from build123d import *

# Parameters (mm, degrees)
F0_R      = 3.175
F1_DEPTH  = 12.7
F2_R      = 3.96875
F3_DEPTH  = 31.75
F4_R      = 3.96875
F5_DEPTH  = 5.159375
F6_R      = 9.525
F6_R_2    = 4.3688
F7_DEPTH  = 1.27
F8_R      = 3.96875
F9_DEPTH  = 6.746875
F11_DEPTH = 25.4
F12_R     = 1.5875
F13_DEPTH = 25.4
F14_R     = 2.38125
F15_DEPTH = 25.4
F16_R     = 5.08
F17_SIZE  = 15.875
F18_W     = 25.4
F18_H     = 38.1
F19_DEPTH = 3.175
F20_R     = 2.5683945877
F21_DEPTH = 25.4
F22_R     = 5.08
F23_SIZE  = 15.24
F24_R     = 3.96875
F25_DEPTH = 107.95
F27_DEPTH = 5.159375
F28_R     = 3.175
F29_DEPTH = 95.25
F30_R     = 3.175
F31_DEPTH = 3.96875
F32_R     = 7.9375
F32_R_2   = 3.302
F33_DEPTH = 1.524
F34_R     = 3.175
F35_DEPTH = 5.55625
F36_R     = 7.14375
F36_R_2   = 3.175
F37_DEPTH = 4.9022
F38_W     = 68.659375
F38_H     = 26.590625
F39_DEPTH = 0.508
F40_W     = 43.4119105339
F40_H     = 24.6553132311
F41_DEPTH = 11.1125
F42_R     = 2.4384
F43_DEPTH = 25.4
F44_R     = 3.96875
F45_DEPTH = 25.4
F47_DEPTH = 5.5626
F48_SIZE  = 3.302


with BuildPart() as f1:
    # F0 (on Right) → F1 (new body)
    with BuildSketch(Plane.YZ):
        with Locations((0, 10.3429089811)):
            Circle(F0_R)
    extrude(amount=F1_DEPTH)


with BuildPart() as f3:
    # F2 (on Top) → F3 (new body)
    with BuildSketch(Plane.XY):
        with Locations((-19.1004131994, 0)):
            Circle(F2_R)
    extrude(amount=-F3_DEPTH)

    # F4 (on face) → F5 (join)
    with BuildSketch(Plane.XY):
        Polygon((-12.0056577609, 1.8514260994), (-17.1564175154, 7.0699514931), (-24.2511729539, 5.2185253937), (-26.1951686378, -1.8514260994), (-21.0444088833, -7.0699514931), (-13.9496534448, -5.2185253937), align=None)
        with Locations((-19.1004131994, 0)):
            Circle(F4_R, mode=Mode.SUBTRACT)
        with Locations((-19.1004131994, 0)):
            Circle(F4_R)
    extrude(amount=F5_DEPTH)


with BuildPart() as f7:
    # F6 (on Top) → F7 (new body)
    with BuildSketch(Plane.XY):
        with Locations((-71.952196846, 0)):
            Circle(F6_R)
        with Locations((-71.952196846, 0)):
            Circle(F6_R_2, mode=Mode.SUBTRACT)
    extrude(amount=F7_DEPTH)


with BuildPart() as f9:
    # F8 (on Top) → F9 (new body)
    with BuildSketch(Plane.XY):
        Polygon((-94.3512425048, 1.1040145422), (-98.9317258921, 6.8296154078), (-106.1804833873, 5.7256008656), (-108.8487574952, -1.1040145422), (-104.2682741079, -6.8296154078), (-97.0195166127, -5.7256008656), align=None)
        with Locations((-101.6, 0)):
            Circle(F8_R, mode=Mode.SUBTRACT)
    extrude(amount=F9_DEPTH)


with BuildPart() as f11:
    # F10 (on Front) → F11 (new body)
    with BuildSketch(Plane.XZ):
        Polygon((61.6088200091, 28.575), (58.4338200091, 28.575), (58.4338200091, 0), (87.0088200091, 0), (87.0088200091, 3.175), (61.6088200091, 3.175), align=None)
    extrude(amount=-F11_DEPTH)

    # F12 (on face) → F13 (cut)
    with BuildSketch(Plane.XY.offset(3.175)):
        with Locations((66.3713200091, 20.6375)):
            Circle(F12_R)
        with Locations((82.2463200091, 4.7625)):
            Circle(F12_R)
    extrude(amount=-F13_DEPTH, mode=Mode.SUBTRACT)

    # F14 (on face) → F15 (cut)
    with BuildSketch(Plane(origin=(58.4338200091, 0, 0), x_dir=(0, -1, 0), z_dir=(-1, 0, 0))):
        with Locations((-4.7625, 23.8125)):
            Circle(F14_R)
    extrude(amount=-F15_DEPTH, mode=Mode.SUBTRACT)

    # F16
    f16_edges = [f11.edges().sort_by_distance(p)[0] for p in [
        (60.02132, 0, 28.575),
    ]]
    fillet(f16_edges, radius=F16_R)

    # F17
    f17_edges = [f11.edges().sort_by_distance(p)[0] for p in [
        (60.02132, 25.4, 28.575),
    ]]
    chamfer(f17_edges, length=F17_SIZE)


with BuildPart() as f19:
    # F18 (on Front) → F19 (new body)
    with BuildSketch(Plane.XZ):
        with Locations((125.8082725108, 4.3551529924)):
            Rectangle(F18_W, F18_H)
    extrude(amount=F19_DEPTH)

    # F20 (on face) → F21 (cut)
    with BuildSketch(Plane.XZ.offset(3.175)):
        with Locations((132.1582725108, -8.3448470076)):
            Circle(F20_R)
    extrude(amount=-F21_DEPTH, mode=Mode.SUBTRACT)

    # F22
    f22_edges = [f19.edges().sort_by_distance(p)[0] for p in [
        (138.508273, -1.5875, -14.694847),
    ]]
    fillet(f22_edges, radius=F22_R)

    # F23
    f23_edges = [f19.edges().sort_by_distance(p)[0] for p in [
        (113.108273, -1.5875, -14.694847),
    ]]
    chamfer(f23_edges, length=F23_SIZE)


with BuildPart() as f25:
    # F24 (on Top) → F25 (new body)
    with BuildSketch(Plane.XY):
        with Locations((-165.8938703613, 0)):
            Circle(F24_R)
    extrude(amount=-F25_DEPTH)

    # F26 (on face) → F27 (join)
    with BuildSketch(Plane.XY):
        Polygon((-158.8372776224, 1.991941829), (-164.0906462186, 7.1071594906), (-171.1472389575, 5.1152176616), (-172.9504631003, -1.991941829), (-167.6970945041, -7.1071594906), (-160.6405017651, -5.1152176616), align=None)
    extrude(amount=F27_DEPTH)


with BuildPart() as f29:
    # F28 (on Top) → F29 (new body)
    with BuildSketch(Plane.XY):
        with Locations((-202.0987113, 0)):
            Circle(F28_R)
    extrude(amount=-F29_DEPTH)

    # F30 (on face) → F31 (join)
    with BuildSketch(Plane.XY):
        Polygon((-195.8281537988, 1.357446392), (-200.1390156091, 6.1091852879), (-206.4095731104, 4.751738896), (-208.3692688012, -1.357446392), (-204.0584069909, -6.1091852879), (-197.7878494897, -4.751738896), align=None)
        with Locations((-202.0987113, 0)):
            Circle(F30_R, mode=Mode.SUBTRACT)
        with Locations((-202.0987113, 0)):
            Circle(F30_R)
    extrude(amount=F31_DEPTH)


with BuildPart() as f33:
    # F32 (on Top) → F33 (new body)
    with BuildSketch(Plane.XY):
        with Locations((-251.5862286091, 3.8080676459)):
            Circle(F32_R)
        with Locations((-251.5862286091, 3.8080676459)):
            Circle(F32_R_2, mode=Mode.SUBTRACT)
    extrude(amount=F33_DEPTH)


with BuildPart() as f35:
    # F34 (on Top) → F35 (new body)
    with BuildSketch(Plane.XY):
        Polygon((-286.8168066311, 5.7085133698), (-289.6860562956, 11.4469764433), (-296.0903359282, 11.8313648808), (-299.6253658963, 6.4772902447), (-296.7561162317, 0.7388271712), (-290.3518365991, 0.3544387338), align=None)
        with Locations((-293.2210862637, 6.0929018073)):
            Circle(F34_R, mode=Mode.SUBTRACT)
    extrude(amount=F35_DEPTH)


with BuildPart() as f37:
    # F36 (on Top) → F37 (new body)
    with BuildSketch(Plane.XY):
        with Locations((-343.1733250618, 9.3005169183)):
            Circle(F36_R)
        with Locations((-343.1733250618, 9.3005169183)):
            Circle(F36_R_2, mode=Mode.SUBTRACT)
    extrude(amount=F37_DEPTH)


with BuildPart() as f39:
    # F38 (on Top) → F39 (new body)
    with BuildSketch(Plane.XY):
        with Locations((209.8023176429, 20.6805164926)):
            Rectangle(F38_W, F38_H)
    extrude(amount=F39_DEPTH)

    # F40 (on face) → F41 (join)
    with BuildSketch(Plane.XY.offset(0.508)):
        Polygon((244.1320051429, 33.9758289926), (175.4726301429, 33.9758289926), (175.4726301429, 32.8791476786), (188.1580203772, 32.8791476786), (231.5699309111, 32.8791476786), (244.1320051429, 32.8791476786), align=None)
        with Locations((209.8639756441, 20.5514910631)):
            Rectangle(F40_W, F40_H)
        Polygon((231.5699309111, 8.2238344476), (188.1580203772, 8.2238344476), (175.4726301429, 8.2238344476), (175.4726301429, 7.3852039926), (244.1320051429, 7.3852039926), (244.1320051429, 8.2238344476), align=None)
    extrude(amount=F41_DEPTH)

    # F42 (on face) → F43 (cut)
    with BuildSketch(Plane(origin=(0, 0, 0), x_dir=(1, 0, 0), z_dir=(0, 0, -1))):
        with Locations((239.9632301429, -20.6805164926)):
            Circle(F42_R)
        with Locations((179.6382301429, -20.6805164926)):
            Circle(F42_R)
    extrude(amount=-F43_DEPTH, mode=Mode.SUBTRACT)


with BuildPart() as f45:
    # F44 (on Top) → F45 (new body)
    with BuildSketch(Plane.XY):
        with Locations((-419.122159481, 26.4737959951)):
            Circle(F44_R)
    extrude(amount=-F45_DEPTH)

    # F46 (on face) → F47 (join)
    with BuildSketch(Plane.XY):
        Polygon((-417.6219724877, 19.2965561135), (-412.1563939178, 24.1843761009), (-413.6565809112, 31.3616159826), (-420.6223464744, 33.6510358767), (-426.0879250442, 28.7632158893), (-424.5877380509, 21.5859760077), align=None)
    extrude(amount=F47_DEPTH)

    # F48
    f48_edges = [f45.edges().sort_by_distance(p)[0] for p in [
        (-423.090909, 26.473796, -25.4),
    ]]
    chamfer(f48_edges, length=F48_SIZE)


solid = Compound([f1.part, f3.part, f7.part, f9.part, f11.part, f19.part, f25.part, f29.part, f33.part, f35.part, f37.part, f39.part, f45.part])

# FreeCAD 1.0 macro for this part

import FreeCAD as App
import Part
import Sketcher
Q = App.Units.Quantity


def edges_at(feature, points):
    """Names of the edges that pass closest to the given points."""
    edges = feature.Shape.Edges
    near = lambda p: min(range(len(edges)), key=lambda i: edges[i].distToShape(Part.Vertex(*p))[0])
    return sorted({f"Edge{near(p) + 1}" for p in points})

doc = App.newDocument("Part")
params = doc.addObject("Spreadsheet::Sheet", "Params")
for row, (alias, value) in enumerate([
    ("sketch1_diameter", "0.25 in"),
    ("pad1_length", "0.5 in"),
    ("sketch2_diameter", "0.3125 in"),
    ("pad2_length", "1.25 in"),
    ("pad3_length", "0.203125 in"),
    ("sketch4_diameter", "0.75 in"),
    ("sketch4_diameter2", "0.344 in"),
    ("pad4_length", "0.05 in"),
    ("sketch5_diameter", "0.3125 in"),
    ("pad5_length", "0.265625 in"),
    ("sketch6_width", "1 in"),
    ("sketch6_width2", "0.125 in"),
    ("pad6_length", "1 in"),
    ("sketch7_diameter", "0.125 in"),
    ("pocket1_length", "1 in"),
    ("sketch8_diameter", "0.1875 in"),
    ("pocket2_length", "1 in"),
    ("fillet_radius", "0.2 in"),
    ("chamfer_size", "0.625 in"),
    ("sketch9_width", "1 in"),
    ("sketch9_height", "1.5 in"),
    ("pad7_length", "0.125 in"),
    ("pocket3_length", "1 in"),
    ("fillet2_radius", "0.2 in"),
    ("chamfer2_size", "0.6 in"),
    ("sketch11_diameter", "0.3125 in"),
    ("pad8_length", "4.25 in"),
    ("pad9_length", "0.203125 in"),
    ("sketch13_diameter", "0.25 in"),
    ("pad10_length", "3.75 in"),
    ("pad11_length", "0.15625 in"),
    ("sketch15_diameter", "0.26 in"),
    ("sketch15_diameter2", "0.625 in"),
    ("pad12_length", "0.06 in"),
    ("sketch16_diameter", "0.25 in"),
    ("pad13_length", "0.21875 in"),
    ("sketch17_diameter", "0.25 in"),
    ("sketch17_diameter2", "0.5625 in"),
    ("pad14_length", "0.193 in"),
    ("sketch18_width", "2.703125 in"),
    ("sketch18_height", "1.046875 in"),
    ("pad15_length", "0.02 in"),
    ("sketch19_width", "2.703125 in"),
    ("pad16_length", "0.4375 in"),
    ("sketch20_diameter", "0.192 in"),
    ("pocket4_length", "1 in"),
    ("sketch21_diameter", "0.3125 in"),
    ("pad17_length", "1 in"),
    ("pad18_length", "0.219 in"),
    ("chamfer3_size", "0.13 in"),
], start=1):
    params.set(f"A{row}", alias)
    params.set(f"B{row}", "=" + value)
    params.setAlias(f"B{row}", alias)

body = doc.addObject("PartDesign::Body", "Body")

# Sketch on YZ plane
sketch1 = body.newObject("Sketcher::SketchObject", "Sketch")
sketch1.AttachmentSupport = (doc.getObject("YZ_Plane"), [""])
sketch1.MapMode = "FlatFace"
sketch1.addGeometry(Part.Circle(App.Vector(0, 10.342909, 0), App.Vector(0, 0, 1), 3.175), False)
sketch1.addConstraint(Sketcher.Constraint("PointOnObject", 0, 3, -2))
sketch1.addConstraint(Sketcher.Constraint("Diameter", 0, Q("0.25 in")))
sketch1.addConstraint(Sketcher.Constraint("DistanceY", -1, 1, 0, 3, 10.342909))
sketch1.setExpression("Constraints[1]", "Params.sketch1_diameter")
pad1 = body.newObject("PartDesign::Pad", "Pad")
pad1.Profile = sketch1
pad1.setExpression("Length", "Params.pad1_length")
body2 = doc.addObject("PartDesign::Body", "Body001")

# Sketch on XY plane
sketch2 = body2.newObject("Sketcher::SketchObject", "Sketch001")
sketch2.AttachmentSupport = (doc.getObject("XY_Plane001"), [""])
sketch2.MapMode = "FlatFace"
sketch2.addGeometry(Part.Circle(App.Vector(-19.100413, 0, 0), App.Vector(0, 0, 1), 3.96875), False)
sketch2.addConstraint(Sketcher.Constraint("PointOnObject", 0, 3, -1))
sketch2.addConstraint(Sketcher.Constraint("Diameter", 0, Q("0.3125 in")))
sketch2.addConstraint(Sketcher.Constraint("DistanceX", 0, 3, -1, 1, 19.100413))
sketch2.setExpression("Constraints[1]", "Params.sketch2_diameter")
pad2 = body2.newObject("PartDesign::Pad", "Pad001")
pad2.Profile = sketch2
pad2.setExpression("Length", "Params.pad2_length")
pad2.Reversed = True

# Sketch on XY plane
sketch3 = body2.newObject("Sketcher::SketchObject", "Sketch002")
sketch3.AttachmentSupport = (doc.getObject("XY_Plane001"), [""])
sketch3.MapMode = "FlatFace"
sketch3.addGeometry(Part.LineSegment(App.Vector(-12.005658, 1.851426, 0), App.Vector(-17.156418, 7.069951, 0)), False)
sketch3.addGeometry(Part.LineSegment(App.Vector(-17.156418, 7.069951, 0), App.Vector(-24.251173, 5.218525, 0)), False)
sketch3.addGeometry(Part.LineSegment(App.Vector(-24.251173, 5.218525, 0), App.Vector(-26.195169, -1.851426, 0)), False)
sketch3.addGeometry(Part.LineSegment(App.Vector(-26.195169, -1.851426, 0), App.Vector(-21.044409, -7.069951, 0)), False)
sketch3.addGeometry(Part.LineSegment(App.Vector(-21.044409, -7.069951, 0), App.Vector(-13.949653, -5.218525, 0)), False)
sketch3.addGeometry(Part.LineSegment(App.Vector(-13.949653, -5.218525, 0), App.Vector(-12.005658, 1.851426, 0)), False)
sketch3.addConstraint(Sketcher.Constraint("Coincident", 0, 2, 1, 1))
sketch3.addConstraint(Sketcher.Constraint("Coincident", 1, 2, 2, 1))
sketch3.addConstraint(Sketcher.Constraint("Coincident", 2, 2, 3, 1))
sketch3.addConstraint(Sketcher.Constraint("Coincident", 3, 2, 4, 1))
sketch3.addConstraint(Sketcher.Constraint("Coincident", 4, 2, 5, 1))
sketch3.addConstraint(Sketcher.Constraint("Coincident", 5, 2, 0, 1))
sketch3.addConstraint(Sketcher.Constraint("Parallel", 0, 3))
sketch3.addConstraint(Sketcher.Constraint("Parallel", 1, 4))
sketch3.addConstraint(Sketcher.Constraint("Parallel", 2, 5))
sketch3.addConstraint(Sketcher.Constraint("Equal", 0, 1))
sketch3.addConstraint(Sketcher.Constraint("Equal", 1, 2))
sketch3.addConstraint(Sketcher.Constraint("Equal", 2, 3))
sketch3.addConstraint(Sketcher.Constraint("DistanceY", 4, 2, 2, 2, 3.367099))
sketch3.addConstraint(Sketcher.Constraint("Distance", 0, 7.332348))
sketch3.addConstraint(Sketcher.Constraint("DistanceY", -1, 1, 0, 2, 7.069951))
sketch3.addConstraint(Sketcher.Constraint("DistanceX", 2, 2, -1, 1, 26.195169))
sketch3.addConstraint(Sketcher.Constraint("DistanceX", 3, 2, -1, 1, 21.044409))
sketch3.addConstraint(Sketcher.Constraint("DistanceY", 3, 2, -1, 1, 7.069951))
pad3 = body2.newObject("PartDesign::Pad", "Pad002")
pad3.Profile = sketch3
pad3.setExpression("Length", "Params.pad3_length")
body3 = doc.addObject("PartDesign::Body", "Body002")

# Sketch on XY plane
sketch4 = body3.newObject("Sketcher::SketchObject", "Sketch003")
sketch4.AttachmentSupport = (doc.getObject("XY_Plane002"), [""])
sketch4.MapMode = "FlatFace"
sketch4.addGeometry(Part.Circle(App.Vector(-71.952197, 0, 0), App.Vector(0, 0, 1), 9.525), False)
sketch4.addGeometry(Part.Circle(App.Vector(-71.952197, 0, 0), App.Vector(0, 0, 1), 4.3688), False)
sketch4.addConstraint(Sketcher.Constraint("Coincident", 1, 3, 0, 3))
sketch4.addConstraint(Sketcher.Constraint("PointOnObject", 0, 3, -1))
sketch4.addConstraint(Sketcher.Constraint("Diameter", 0, Q("0.75 in")))
sketch4.addConstraint(Sketcher.Constraint("Diameter", 1, Q("0.344 in")))
sketch4.addConstraint(Sketcher.Constraint("DistanceX", 0, 3, -1, 1, 71.952197))
sketch4.setExpression("Constraints[2]", "Params.sketch4_diameter")
sketch4.setExpression("Constraints[3]", "Params.sketch4_diameter2")
pad4 = body3.newObject("PartDesign::Pad", "Pad003")
pad4.Profile = sketch4
pad4.setExpression("Length", "Params.pad4_length")
body4 = doc.addObject("PartDesign::Body", "Body003")

# Sketch on XY plane
sketch5 = body4.newObject("Sketcher::SketchObject", "Sketch004")
sketch5.AttachmentSupport = (doc.getObject("XY_Plane003"), [""])
sketch5.MapMode = "FlatFace"
sketch5.addGeometry(Part.LineSegment(App.Vector(-94.351243, 1.104015, 0), App.Vector(-98.931726, 6.829615, 0)), False)
sketch5.addGeometry(Part.LineSegment(App.Vector(-98.931726, 6.829615, 0), App.Vector(-106.180483, 5.725601, 0)), False)
sketch5.addGeometry(Part.LineSegment(App.Vector(-106.180483, 5.725601, 0), App.Vector(-108.848757, -1.104015, 0)), False)
sketch5.addGeometry(Part.LineSegment(App.Vector(-108.848757, -1.104015, 0), App.Vector(-104.268274, -6.829615, 0)), False)
sketch5.addGeometry(Part.LineSegment(App.Vector(-104.268274, -6.829615, 0), App.Vector(-97.019517, -5.725601, 0)), False)
sketch5.addGeometry(Part.LineSegment(App.Vector(-97.019517, -5.725601, 0), App.Vector(-94.351243, 1.104015, 0)), False)
sketch5.addGeometry(Part.Circle(App.Vector(-101.6, 0, 0), App.Vector(0, 0, 1), 3.96875), False)
sketch5.addConstraint(Sketcher.Constraint("Coincident", 0, 2, 1, 1))
sketch5.addConstraint(Sketcher.Constraint("Coincident", 1, 2, 2, 1))
sketch5.addConstraint(Sketcher.Constraint("Coincident", 2, 2, 3, 1))
sketch5.addConstraint(Sketcher.Constraint("Coincident", 3, 2, 4, 1))
sketch5.addConstraint(Sketcher.Constraint("Coincident", 4, 2, 5, 1))
sketch5.addConstraint(Sketcher.Constraint("Coincident", 5, 2, 0, 1))
sketch5.addConstraint(Sketcher.Constraint("PointOnObject", 6, 3, -1))
sketch5.addConstraint(Sketcher.Constraint("Parallel", 0, 3))
sketch5.addConstraint(Sketcher.Constraint("Parallel", 1, 4))
sketch5.addConstraint(Sketcher.Constraint("Parallel", 2, 5))
sketch5.addConstraint(Sketcher.Constraint("Equal", 0, 1))
sketch5.addConstraint(Sketcher.Constraint("Equal", 1, 2))
sketch5.addConstraint(Sketcher.Constraint("Equal", 2, 3))
sketch5.addConstraint(Sketcher.Constraint("Diameter", 6, Q("0.3125 in")))
sketch5.addConstraint(Sketcher.Constraint("DistanceX", 6, 3, -1, 1, Q("4 in")))
sketch5.addConstraint(Sketcher.Constraint("DistanceY", 3, 2, 1, 2, Q("0.4942999 in")))
sketch5.addConstraint(Sketcher.Constraint("DistanceY", -1, 1, 1, 2, 5.725601))
sketch5.addConstraint(Sketcher.Constraint("DistanceY", 4, 2, -1, 1, 5.725601))
sketch5.addConstraint(Sketcher.Constraint("DistanceY", 3, 2, 2, 2, 5.725601))
sketch5.addConstraint(Sketcher.Constraint("Distance", 0, 7.332348))
sketch5.addConstraint(Sketcher.Constraint("DistanceX", 0, 2, -1, 1, 98.931726))
sketch5.setExpression("Constraints[13]", "Params.sketch5_diameter")
pad5 = body4.newObject("PartDesign::Pad", "Pad004")
pad5.Profile = sketch5
pad5.setExpression("Length", "Params.pad5_length")
body5 = doc.addObject("PartDesign::Body", "Body004")

# Sketch on XZ plane
sketch6 = body5.newObject("Sketcher::SketchObject", "Sketch005")
sketch6.AttachmentSupport = (doc.getObject("XZ_Plane004"), [""])
sketch6.MapMode = "FlatFace"
sketch6.addGeometry(Part.LineSegment(App.Vector(61.60882, 28.575, 0), App.Vector(58.43382, 28.575, 0)), False)
sketch6.addGeometry(Part.LineSegment(App.Vector(58.43382, 28.575, 0), App.Vector(58.43382, 0, 0)), False)
sketch6.addGeometry(Part.LineSegment(App.Vector(58.43382, 0, 0), App.Vector(87.00882, 0, 0)), False)
sketch6.addGeometry(Part.LineSegment(App.Vector(87.00882, 0, 0), App.Vector(87.00882, 3.175, 0)), False)
sketch6.addGeometry(Part.LineSegment(App.Vector(87.00882, 3.175, 0), App.Vector(61.60882, 3.175, 0)), False)
sketch6.addGeometry(Part.LineSegment(App.Vector(61.60882, 3.175, 0), App.Vector(61.60882, 28.575, 0)), False)
sketch6.addConstraint(Sketcher.Constraint("Coincident", 0, 2, 1, 1))
sketch6.addConstraint(Sketcher.Constraint("Coincident", 1, 2, 2, 1))
sketch6.addConstraint(Sketcher.Constraint("Coincident", 2, 2, 3, 1))
sketch6.addConstraint(Sketcher.Constraint("Coincident", 3, 2, 4, 1))
sketch6.addConstraint(Sketcher.Constraint("Coincident", 4, 2, 5, 1))
sketch6.addConstraint(Sketcher.Constraint("Coincident", 5, 2, 0, 1))
sketch6.addConstraint(Sketcher.Constraint("Horizontal", 0))
sketch6.addConstraint(Sketcher.Constraint("Vertical", 1))
sketch6.addConstraint(Sketcher.Constraint("Horizontal", 2))
sketch6.addConstraint(Sketcher.Constraint("Vertical", 3))
sketch6.addConstraint(Sketcher.Constraint("Horizontal", 4))
sketch6.addConstraint(Sketcher.Constraint("Vertical", 5))
sketch6.addConstraint(Sketcher.Constraint("PointOnObject", 1, 2, -1))
sketch6.addConstraint(Sketcher.Constraint("Equal", 2, 1))
sketch6.addConstraint(Sketcher.Constraint("Equal", 0, 3))
sketch6.addConstraint(Sketcher.Constraint("DistanceX", 4, 2, 4, 1, Q("1 in")))
sketch6.addConstraint(Sketcher.Constraint("DistanceX", 0, 2, 0, 1, Q("0.125 in")))
sketch6.addConstraint(Sketcher.Constraint("DistanceX", -1, 1, 0, 2, 58.43382))
sketch6.setExpression("Constraints[15]", "Params.sketch6_width")
sketch6.setExpression("Constraints[16]", "Params.sketch6_width2")
pad6 = body5.newObject("PartDesign::Pad", "Pad005")
pad6.Profile = sketch6
pad6.setExpression("Length", "Params.pad6_length")
pad6.Reversed = True

# Sketch on XY plane
sketch7 = body5.newObject("Sketcher::SketchObject", "Sketch006")
sketch7.AttachmentSupport = (doc.getObject("XY_Plane004"), [""])
sketch7.MapMode = "FlatFace"
sketch7.AttachmentOffset = App.Placement(App.Vector(0, 0, 0.125 * 25.4), App.Rotation())
sketch7.addGeometry(Part.Circle(App.Vector(66.37132, 20.6375, 0), App.Vector(0, 0, 1), 1.5875), False)
sketch7.addGeometry(Part.Circle(App.Vector(82.24632, 4.7625, 0), App.Vector(0, 0, 1), 1.5875), False)
sketch7.addConstraint(Sketcher.Constraint("Equal", 0, 1))
sketch7.addConstraint(Sketcher.Constraint("Diameter", 0, Q("0.125 in")))
sketch7.addConstraint(Sketcher.Constraint("DistanceY", -1, 1, 0, 3, Q("0.8125 in")))
sketch7.addConstraint(Sketcher.Constraint("DistanceY", -1, 1, 1, 3, Q("0.1875 in")))
sketch7.addConstraint(Sketcher.Constraint("DistanceX", 0, 3, 1, 3, Q("0.625 in")))
sketch7.addConstraint(Sketcher.Constraint("DistanceX", -1, 1, 0, 3, 66.37132))
sketch7.setExpression("Constraints[1]", "Params.sketch7_diameter")
pocket1 = body5.newObject("PartDesign::Pocket", "Pocket")
pocket1.Profile = sketch7
pocket1.setExpression("Length", "Params.pocket1_length")

# Sketch on YZ plane
sketch8 = body5.newObject("Sketcher::SketchObject", "Sketch007")
sketch8.AttachmentSupport = (doc.getObject("YZ_Plane004"), [""])
sketch8.MapMode = "FlatFace"
sketch8.AttachmentOffset = App.Placement(App.Vector(0, 0, 58.43382), App.Rotation())
sketch8.addGeometry(Part.Circle(App.Vector(4.7625, 23.8125, 0), App.Vector(0, 0, 1), 2.38125), False)
sketch8.addConstraint(Sketcher.Constraint("Diameter", 0, Q("0.1875 in")))
sketch8.addConstraint(Sketcher.Constraint("DistanceX", -1, 1, 0, 3, Q("0.1875 in")))
sketch8.addConstraint(Sketcher.Constraint("DistanceY", -1, 1, 0, 3, Q("0.9375 in")))
sketch8.setExpression("Constraints[0]", "Params.sketch8_diameter")
pocket2 = body5.newObject("PartDesign::Pocket", "Pocket001")
pocket2.Profile = sketch8
pocket2.setExpression("Length", "Params.pocket2_length")
pocket2.Reversed = True
doc.recompute()

fillet = body5.newObject("PartDesign::Fillet", "Fillet")
fillet.Base = (pocket2, edges_at(pocket2, [(60.021, 0, 28.575)]))
fillet.setExpression("Radius", "Params.fillet_radius")
doc.recompute()

chamfer = body5.newObject("PartDesign::Chamfer", "Chamfer")
chamfer.Base = (fillet, edges_at(fillet, [(60.021, 25.4, 28.575)]))
chamfer.setExpression("Size", "Params.chamfer_size")
body6 = doc.addObject("PartDesign::Body", "Body005")

# Sketch on XZ plane
sketch9 = body6.newObject("Sketcher::SketchObject", "Sketch008")
sketch9.AttachmentSupport = (doc.getObject("XZ_Plane005"), [""])
sketch9.MapMode = "FlatFace"
sketch9.addGeometry(Part.LineSegment(App.Vector(113.108273, 23.405153, 0), App.Vector(113.108273, -14.694847, 0)), False)
sketch9.addGeometry(Part.LineSegment(App.Vector(113.108273, -14.694847, 0), App.Vector(138.508273, -14.694847, 0)), False)
sketch9.addGeometry(Part.LineSegment(App.Vector(138.508273, -14.694847, 0), App.Vector(138.508273, 23.405153, 0)), False)
sketch9.addGeometry(Part.LineSegment(App.Vector(138.508273, 23.405153, 0), App.Vector(113.108273, 23.405153, 0)), False)
sketch9.addConstraint(Sketcher.Constraint("Coincident", 0, 2, 1, 1))
sketch9.addConstraint(Sketcher.Constraint("Coincident", 1, 2, 2, 1))
sketch9.addConstraint(Sketcher.Constraint("Coincident", 2, 2, 3, 1))
sketch9.addConstraint(Sketcher.Constraint("Coincident", 3, 2, 0, 1))
sketch9.addConstraint(Sketcher.Constraint("Vertical", 0))
sketch9.addConstraint(Sketcher.Constraint("Horizontal", 1))
sketch9.addConstraint(Sketcher.Constraint("Vertical", 2))
sketch9.addConstraint(Sketcher.Constraint("Horizontal", 3))
sketch9.addConstraint(Sketcher.Constraint("DistanceX", 1, 1, 1, 2, Q("1 in")))
sketch9.addConstraint(Sketcher.Constraint("DistanceY", 0, 2, 0, 1, Q("1.5 in")))
sketch9.addConstraint(Sketcher.Constraint("DistanceX", -1, 1, 0, 2, 113.108273))
sketch9.addConstraint(Sketcher.Constraint("DistanceY", 0, 2, -1, 1, 14.694847))
sketch9.setExpression("Constraints[8]", "Params.sketch9_width")
sketch9.setExpression("Constraints[9]", "Params.sketch9_height")
pad7 = body6.newObject("PartDesign::Pad", "Pad006")
pad7.Profile = sketch9
pad7.setExpression("Length", "Params.pad7_length")

# Sketch on XZ plane
sketch10 = body6.newObject("Sketcher::SketchObject", "Sketch009")
sketch10.AttachmentSupport = (doc.getObject("XZ_Plane005"), [""])
sketch10.MapMode = "FlatFace"
sketch10.AttachmentOffset = App.Placement(App.Vector(0, 0, 0.125 * 25.4), App.Rotation())
sketch10.addGeometry(Part.Circle(App.Vector(132.158273, -8.344847, 0), App.Vector(0, 0, 1), 2.568395), False)
sketch10.addConstraint(Sketcher.Constraint("Diameter", 0, 5.136789))
sketch10.addConstraint(Sketcher.Constraint("DistanceX", -1, 1, 0, 3, 132.158273))
sketch10.addConstraint(Sketcher.Constraint("DistanceY", 0, 3, -1, 1, 8.344847))
pocket3 = body6.newObject("PartDesign::Pocket", "Pocket002")
pocket3.Profile = sketch10
pocket3.setExpression("Length", "Params.pocket3_length")
doc.recompute()

fillet2 = body6.newObject("PartDesign::Fillet", "Fillet001")
fillet2.Base = (pocket3, edges_at(pocket3, [(138.508, -1.587, -14.695)]))
fillet2.setExpression("Radius", "Params.fillet2_radius")
doc.recompute()

chamfer2 = body6.newObject("PartDesign::Chamfer", "Chamfer001")
chamfer2.Base = (fillet2, edges_at(fillet2, [(113.108, -1.587, -14.695)]))
chamfer2.setExpression("Size", "Params.chamfer2_size")
body7 = doc.addObject("PartDesign::Body", "Body006")

# Sketch on XY plane
sketch11 = body7.newObject("Sketcher::SketchObject", "Sketch010")
sketch11.AttachmentSupport = (doc.getObject("XY_Plane006"), [""])
sketch11.MapMode = "FlatFace"
sketch11.addGeometry(Part.Circle(App.Vector(-165.89387, 0, 0), App.Vector(0, 0, 1), 3.96875), False)
sketch11.addConstraint(Sketcher.Constraint("PointOnObject", 0, 3, -1))
sketch11.addConstraint(Sketcher.Constraint("Diameter", 0, Q("0.3125 in")))
sketch11.addConstraint(Sketcher.Constraint("DistanceX", 0, 3, -1, 1, 165.89387))
sketch11.setExpression("Constraints[1]", "Params.sketch11_diameter")
pad8 = body7.newObject("PartDesign::Pad", "Pad007")
pad8.Profile = sketch11
pad8.setExpression("Length", "Params.pad8_length")
pad8.Reversed = True

# Sketch on XY plane
sketch12 = body7.newObject("Sketcher::SketchObject", "Sketch011")
sketch12.AttachmentSupport = (doc.getObject("XY_Plane006"), [""])
sketch12.MapMode = "FlatFace"
sketch12.addGeometry(Part.LineSegment(App.Vector(-158.837278, 1.991942, 0), App.Vector(-164.090646, 7.107159, 0)), False)
sketch12.addGeometry(Part.LineSegment(App.Vector(-164.090646, 7.107159, 0), App.Vector(-171.147239, 5.115218, 0)), False)
sketch12.addGeometry(Part.LineSegment(App.Vector(-171.147239, 5.115218, 0), App.Vector(-172.950463, -1.991942, 0)), False)
sketch12.addGeometry(Part.LineSegment(App.Vector(-172.950463, -1.991942, 0), App.Vector(-167.697095, -7.107159, 0)), False)
sketch12.addGeometry(Part.LineSegment(App.Vector(-167.697095, -7.107159, 0), App.Vector(-160.640502, -5.115218, 0)), False)
sketch12.addGeometry(Part.LineSegment(App.Vector(-160.640502, -5.115218, 0), App.Vector(-158.837278, 1.991942, 0)), False)
sketch12.addConstraint(Sketcher.Constraint("Coincident", 0, 2, 1, 1))
sketch12.addConstraint(Sketcher.Constraint("Coincident", 1, 2, 2, 1))
sketch12.addConstraint(Sketcher.Constraint("Coincident", 2, 2, 3, 1))
sketch12.addConstraint(Sketcher.Constraint("Coincident", 3, 2, 4, 1))
sketch12.addConstraint(Sketcher.Constraint("Coincident", 4, 2, 5, 1))
sketch12.addConstraint(Sketcher.Constraint("Coincident", 5, 2, 0, 1))
sketch12.addConstraint(Sketcher.Constraint("Parallel", 0, 3))
sketch12.addConstraint(Sketcher.Constraint("Parallel", 1, 4))
sketch12.addConstraint(Sketcher.Constraint("Parallel", 2, 5))
sketch12.addConstraint(Sketcher.Constraint("Equal", 0, 1))
sketch12.addConstraint(Sketcher.Constraint("Equal", 1, 2))
sketch12.addConstraint(Sketcher.Constraint("Equal", 2, 3))
sketch12.addConstraint(Sketcher.Constraint("DistanceX", 4, 2, -1, 1, 160.640502))
sketch12.addConstraint(Sketcher.Constraint("DistanceY", 2, 2, 0, 2, 9.099101))
sketch12.addConstraint(Sketcher.Constraint("Distance", 0, 7.332348))
sketch12.addConstraint(Sketcher.Constraint("DistanceY", -1, 1, 0, 2, 7.107159))
sketch12.addConstraint(Sketcher.Constraint("DistanceX", 1, 2, -1, 1, 171.147239))
sketch12.addConstraint(Sketcher.Constraint("DistanceY", 3, 2, -1, 1, 7.107159))
pad9 = body7.newObject("PartDesign::Pad", "Pad008")
pad9.Profile = sketch12
pad9.setExpression("Length", "Params.pad9_length")
body8 = doc.addObject("PartDesign::Body", "Body007")

# Sketch on XY plane
sketch13 = body8.newObject("Sketcher::SketchObject", "Sketch012")
sketch13.AttachmentSupport = (doc.getObject("XY_Plane007"), [""])
sketch13.MapMode = "FlatFace"
sketch13.addGeometry(Part.Circle(App.Vector(-202.098711, 0, 0), App.Vector(0, 0, 1), 3.175), False)
sketch13.addConstraint(Sketcher.Constraint("PointOnObject", 0, 3, -1))
sketch13.addConstraint(Sketcher.Constraint("Diameter", 0, Q("0.25 in")))
sketch13.addConstraint(Sketcher.Constraint("DistanceX", 0, 3, -1, 1, 202.098711))
sketch13.setExpression("Constraints[1]", "Params.sketch13_diameter")
pad10 = body8.newObject("PartDesign::Pad", "Pad009")
pad10.Profile = sketch13
pad10.setExpression("Length", "Params.pad10_length")
pad10.Reversed = True

# Sketch on XY plane
sketch14 = body8.newObject("Sketcher::SketchObject", "Sketch013")
sketch14.AttachmentSupport = (doc.getObject("XY_Plane007"), [""])
sketch14.MapMode = "FlatFace"
sketch14.addGeometry(Part.LineSegment(App.Vector(-195.828154, 1.357446, 0), App.Vector(-200.139016, 6.109185, 0)), False)
sketch14.addGeometry(Part.LineSegment(App.Vector(-200.139016, 6.109185, 0), App.Vector(-206.409573, 4.751739, 0)), False)
sketch14.addGeometry(Part.LineSegment(App.Vector(-206.409573, 4.751739, 0), App.Vector(-208.369269, -1.357446, 0)), False)
sketch14.addGeometry(Part.LineSegment(App.Vector(-208.369269, -1.357446, 0), App.Vector(-204.058407, -6.109185, 0)), False)
sketch14.addGeometry(Part.LineSegment(App.Vector(-204.058407, -6.109185, 0), App.Vector(-197.787849, -4.751739, 0)), False)
sketch14.addGeometry(Part.LineSegment(App.Vector(-197.787849, -4.751739, 0), App.Vector(-195.828154, 1.357446, 0)), False)
sketch14.addConstraint(Sketcher.Constraint("Coincident", 0, 2, 1, 1))
sketch14.addConstraint(Sketcher.Constraint("Coincident", 1, 2, 2, 1))
sketch14.addConstraint(Sketcher.Constraint("Coincident", 2, 2, 3, 1))
sketch14.addConstraint(Sketcher.Constraint("Coincident", 3, 2, 4, 1))
sketch14.addConstraint(Sketcher.Constraint("Coincident", 4, 2, 5, 1))
sketch14.addConstraint(Sketcher.Constraint("Coincident", 5, 2, 0, 1))
sketch14.addConstraint(Sketcher.Constraint("Parallel", 0, 3))
sketch14.addConstraint(Sketcher.Constraint("Parallel", 1, 4))
sketch14.addConstraint(Sketcher.Constraint("Parallel", 2, 5))
sketch14.addConstraint(Sketcher.Constraint("Equal", 0, 1))
sketch14.addConstraint(Sketcher.Constraint("Equal", 1, 2))
sketch14.addConstraint(Sketcher.Constraint("Equal", 2, 3))
sketch14.addConstraint(Sketcher.Constraint("DistanceY", -1, 1, 1, 2, 4.751739))
sketch14.addConstraint(Sketcher.Constraint("DistanceX", 2, 2, -1, 1, 208.369269))
sketch14.addConstraint(Sketcher.Constraint("DistanceX", 4, 2, -1, 1, 197.787849))
sketch14.addConstraint(Sketcher.Constraint("DistanceY", 4, 2, -1, 1, 4.751739))
sketch14.addConstraint(Sketcher.Constraint("DistanceY", 2, 2, 0, 2, 7.466632))
sketch14.addConstraint(Sketcher.Constraint("DistanceX", 2, 2, 3, 2, 4.310862))
pad11 = body8.newObject("PartDesign::Pad", "Pad010")
pad11.Profile = sketch14
pad11.setExpression("Length", "Params.pad11_length")
body9 = doc.addObject("PartDesign::Body", "Body008")

# Sketch on XY plane
sketch15 = body9.newObject("Sketcher::SketchObject", "Sketch014")
sketch15.AttachmentSupport = (doc.getObject("XY_Plane008"), [""])
sketch15.MapMode = "FlatFace"
sketch15.addGeometry(Part.Circle(App.Vector(-251.586229, 3.808068, 0), App.Vector(0, 0, 1), 7.9375), False)
sketch15.addGeometry(Part.Circle(App.Vector(-251.586229, 3.808068, 0), App.Vector(0, 0, 1), 3.302), False)
sketch15.addConstraint(Sketcher.Constraint("Coincident", 1, 3, 0, 3))
sketch15.addConstraint(Sketcher.Constraint("Diameter", 1, Q("0.26 in")))
sketch15.addConstraint(Sketcher.Constraint("Diameter", 0, Q("0.625 in")))
sketch15.addConstraint(Sketcher.Constraint("DistanceX", 0, 3, -1, 1, 251.586229))
sketch15.addConstraint(Sketcher.Constraint("DistanceY", -1, 1, 0, 3, 3.808068))
sketch15.setExpression("Constraints[1]", "Params.sketch15_diameter")
sketch15.setExpression("Constraints[2]", "Params.sketch15_diameter2")
pad12 = body9.newObject("PartDesign::Pad", "Pad011")
pad12.Profile = sketch15
pad12.setExpression("Length", "Params.pad12_length")
body10 = doc.addObject("PartDesign::Body", "Body009")

# Sketch on XY plane
sketch16 = body10.newObject("Sketcher::SketchObject", "Sketch015")
sketch16.AttachmentSupport = (doc.getObject("XY_Plane009"), [""])
sketch16.MapMode = "FlatFace"
sketch16.addGeometry(Part.LineSegment(App.Vector(-286.816807, 5.708513, 0), App.Vector(-289.686056, 11.446976, 0)), False)
sketch16.addGeometry(Part.LineSegment(App.Vector(-289.686056, 11.446976, 0), App.Vector(-296.090336, 11.831365, 0)), False)
sketch16.addGeometry(Part.LineSegment(App.Vector(-296.090336, 11.831365, 0), App.Vector(-299.625366, 6.47729, 0)), False)
sketch16.addGeometry(Part.LineSegment(App.Vector(-299.625366, 6.47729, 0), App.Vector(-296.756116, 0.738827, 0)), False)
sketch16.addGeometry(Part.LineSegment(App.Vector(-296.756116, 0.738827, 0), App.Vector(-290.351837, 0.354439, 0)), False)
sketch16.addGeometry(Part.LineSegment(App.Vector(-290.351837, 0.354439, 0), App.Vector(-286.816807, 5.708513, 0)), False)
sketch16.addGeometry(Part.Circle(App.Vector(-293.221086, 6.092902, 0), App.Vector(0, 0, 1), 3.175), False)
sketch16.addConstraint(Sketcher.Constraint("Coincident", 0, 2, 1, 1))
sketch16.addConstraint(Sketcher.Constraint("Coincident", 1, 2, 2, 1))
sketch16.addConstraint(Sketcher.Constraint("Coincident", 2, 2, 3, 1))
sketch16.addConstraint(Sketcher.Constraint("Coincident", 3, 2, 4, 1))
sketch16.addConstraint(Sketcher.Constraint("Coincident", 4, 2, 5, 1))
sketch16.addConstraint(Sketcher.Constraint("Coincident", 5, 2, 0, 1))
sketch16.addConstraint(Sketcher.Constraint("Parallel", 0, 3))
sketch16.addConstraint(Sketcher.Constraint("Parallel", 1, 4))
sketch16.addConstraint(Sketcher.Constraint("Parallel", 2, 5))
sketch16.addConstraint(Sketcher.Constraint("Equal", 0, 1))
sketch16.addConstraint(Sketcher.Constraint("Equal", 1, 2))
sketch16.addConstraint(Sketcher.Constraint("Equal", 2, 3))
sketch16.addConstraint(Sketcher.Constraint("Diameter", 6, Q("0.25 in")))
sketch16.addConstraint(Sketcher.Constraint("DistanceX", 1, 2, -1, 1, Q("11.6570998 in")))
sketch16.addConstraint(Sketcher.Constraint("DistanceY", -1, 1, 6, 3, 6.092902))
sketch16.addConstraint(Sketcher.Constraint("DistanceX", 1, 2, 4, 2, 5.738499))
sketch16.addConstraint(Sketcher.Constraint("DistanceY", -1, 1, 2, 2, 6.47729))
sketch16.addConstraint(Sketcher.Constraint("DistanceY", -1, 1, 4, 2, 0.354439))
sketch16.addConstraint(Sketcher.Constraint("DistanceX", 6, 3, 0, 2, 3.53503))
sketch16.addConstraint(Sketcher.Constraint("DistanceX", 1, 2, 0, 2, 6.40428))
sketch16.addConstraint(Sketcher.Constraint("DistanceY", 0, 2, 1, 2, 0.384388))
sketch16.setExpression("Constraints[12]", "Params.sketch16_diameter")
pad13 = body10.newObject("PartDesign::Pad", "Pad012")
pad13.Profile = sketch16
pad13.setExpression("Length", "Params.pad13_length")
body11 = doc.addObject("PartDesign::Body", "Body010")

# Sketch on XY plane
sketch17 = body11.newObject("Sketcher::SketchObject", "Sketch016")
sketch17.AttachmentSupport = (doc.getObject("XY_Plane010"), [""])
sketch17.MapMode = "FlatFace"
sketch17.addGeometry(Part.Circle(App.Vector(-343.173325, 9.300517, 0), App.Vector(0, 0, 1), 7.14375), False)
sketch17.addGeometry(Part.Circle(App.Vector(-343.173325, 9.300517, 0), App.Vector(0, 0, 1), 3.175), False)
sketch17.addConstraint(Sketcher.Constraint("Coincident", 1, 3, 0, 3))
sketch17.addConstraint(Sketcher.Constraint("Diameter", 1, Q("0.25 in")))
sketch17.addConstraint(Sketcher.Constraint("Diameter", 0, Q("0.5625 in")))
sketch17.addConstraint(Sketcher.Constraint("DistanceX", 0, 3, -1, 1, 343.173325))
sketch17.addConstraint(Sketcher.Constraint("DistanceY", -1, 1, 0, 3, 9.300517))
sketch17.setExpression("Constraints[1]", "Params.sketch17_diameter")
sketch17.setExpression("Constraints[2]", "Params.sketch17_diameter2")
pad14 = body11.newObject("PartDesign::Pad", "Pad013")
pad14.Profile = sketch17
pad14.setExpression("Length", "Params.pad14_length")
body12 = doc.addObject("PartDesign::Body", "Body011")

# Sketch on XY plane
sketch18 = body12.newObject("Sketcher::SketchObject", "Sketch017")
sketch18.AttachmentSupport = (doc.getObject("XY_Plane011"), [""])
sketch18.MapMode = "FlatFace"
sketch18.addGeometry(Part.LineSegment(App.Vector(175.47263, 33.975829, 0), App.Vector(175.47263, 7.385204, 0)), False)
sketch18.addGeometry(Part.LineSegment(App.Vector(175.47263, 7.385204, 0), App.Vector(244.132005, 7.385204, 0)), False)
sketch18.addGeometry(Part.LineSegment(App.Vector(244.132005, 7.385204, 0), App.Vector(244.132005, 33.975829, 0)), False)
sketch18.addGeometry(Part.LineSegment(App.Vector(244.132005, 33.975829, 0), App.Vector(175.47263, 33.975829, 0)), False)
sketch18.addConstraint(Sketcher.Constraint("Coincident", 0, 2, 1, 1))
sketch18.addConstraint(Sketcher.Constraint("Coincident", 1, 2, 2, 1))
sketch18.addConstraint(Sketcher.Constraint("Coincident", 2, 2, 3, 1))
sketch18.addConstraint(Sketcher.Constraint("Coincident", 3, 2, 0, 1))
sketch18.addConstraint(Sketcher.Constraint("Vertical", 0))
sketch18.addConstraint(Sketcher.Constraint("Horizontal", 1))
sketch18.addConstraint(Sketcher.Constraint("Vertical", 2))
sketch18.addConstraint(Sketcher.Constraint("Horizontal", 3))
sketch18.addConstraint(Sketcher.Constraint("DistanceX", 1, 1, 1, 2, Q("2.703125 in")))
sketch18.addConstraint(Sketcher.Constraint("DistanceY", 0, 2, 0, 1, Q("1.046875 in")))
sketch18.addConstraint(Sketcher.Constraint("DistanceX", -1, 1, 0, 2, 175.47263))
sketch18.addConstraint(Sketcher.Constraint("DistanceY", -1, 1, 2, 2, 33.975829))
sketch18.setExpression("Constraints[8]", "Params.sketch18_width")
sketch18.setExpression("Constraints[9]", "Params.sketch18_height")
pad15 = body12.newObject("PartDesign::Pad", "Pad014")
pad15.Profile = sketch18
pad15.setExpression("Length", "Params.pad15_length")

# Sketch on XY plane
sketch19 = body12.newObject("Sketcher::SketchObject", "Sketch018")
sketch19.AttachmentSupport = (doc.getObject("XY_Plane011"), [""])
sketch19.MapMode = "FlatFace"
sketch19.AttachmentOffset = App.Placement(App.Vector(0, 0, 0.02 * 25.4), App.Rotation())
sketch19.addGeometry(Part.LineSegment(App.Vector(244.132005, 33.975829, 0), App.Vector(175.47263, 33.975829, 0)), False)
sketch19.addGeometry(Part.LineSegment(App.Vector(175.47263, 33.975829, 0), App.Vector(175.47263, 32.879148, 0)), False)
sketch19.addGeometry(Part.LineSegment(App.Vector(175.47263, 32.879148, 0), App.Vector(188.15802, 32.879148, 0)), False)
sketch19.addGeometry(Part.LineSegment(App.Vector(188.15802, 32.879148, 0), App.Vector(188.15802, 8.223834, 0)), False)
sketch19.addGeometry(Part.LineSegment(App.Vector(188.15802, 8.223834, 0), App.Vector(175.47263, 8.223834, 0)), False)
sketch19.addGeometry(Part.LineSegment(App.Vector(175.47263, 8.223834, 0), App.Vector(175.47263, 7.385204, 0)), False)
sketch19.addGeometry(Part.LineSegment(App.Vector(175.47263, 7.385204, 0), App.Vector(244.132005, 7.385204, 0)), False)
sketch19.addGeometry(Part.LineSegment(App.Vector(244.132005, 7.385204, 0), App.Vector(244.132005, 8.223834, 0)), False)
sketch19.addGeometry(Part.LineSegment(App.Vector(244.132005, 8.223834, 0), App.Vector(231.569931, 8.223834, 0)), False)
sketch19.addGeometry(Part.LineSegment(App.Vector(231.569931, 8.223834, 0), App.Vector(231.569931, 32.879148, 0)), False)
sketch19.addGeometry(Part.LineSegment(App.Vector(231.569931, 32.879148, 0), App.Vector(244.132005, 32.879148, 0)), False)
sketch19.addGeometry(Part.LineSegment(App.Vector(244.132005, 32.879148, 0), App.Vector(244.132005, 33.975829, 0)), False)
sketch19.addConstraint(Sketcher.Constraint("Coincident", 0, 2, 1, 1))
sketch19.addConstraint(Sketcher.Constraint("Coincident", 1, 2, 2, 1))
sketch19.addConstraint(Sketcher.Constraint("Coincident", 2, 2, 3, 1))
sketch19.addConstraint(Sketcher.Constraint("Coincident", 3, 2, 4, 1))
sketch19.addConstraint(Sketcher.Constraint("Coincident", 4, 2, 5, 1))
sketch19.addConstraint(Sketcher.Constraint("Coincident", 5, 2, 6, 1))
sketch19.addConstraint(Sketcher.Constraint("Coincident", 6, 2, 7, 1))
sketch19.addConstraint(Sketcher.Constraint("Coincident", 7, 2, 8, 1))
sketch19.addConstraint(Sketcher.Constraint("Coincident", 8, 2, 9, 1))
sketch19.addConstraint(Sketcher.Constraint("Coincident", 9, 2, 10, 1))
sketch19.addConstraint(Sketcher.Constraint("Coincident", 10, 2, 11, 1))
sketch19.addConstraint(Sketcher.Constraint("Coincident", 11, 2, 0, 1))
sketch19.addConstraint(Sketcher.Constraint("Horizontal", 0))
sketch19.addConstraint(Sketcher.Constraint("Vertical", 1))
sketch19.addConstraint(Sketcher.Constraint("Horizontal", 2))
sketch19.addConstraint(Sketcher.Constraint("Vertical", 3))
sketch19.addConstraint(Sketcher.Constraint("Horizontal", 4))
sketch19.addConstraint(Sketcher.Constraint("Vertical", 5))
sketch19.addConstraint(Sketcher.Constraint("Horizontal", 6))
sketch19.addConstraint(Sketcher.Constraint("Vertical", 7))
sketch19.addConstraint(Sketcher.Constraint("Horizontal", 8))
sketch19.addConstraint(Sketcher.Constraint("Vertical", 9))
sketch19.addConstraint(Sketcher.Constraint("Horizontal", 10))
sketch19.addConstraint(Sketcher.Constraint("Vertical", 11))
sketch19.addConstraint(Sketcher.Constraint("Horizontal", 4, 2, 7, 2))
sketch19.addConstraint(Sketcher.Constraint("Horizontal", 2, 2, 9, 2))
sketch19.addConstraint(Sketcher.Constraint("Vertical", 1, 2, 4, 2))
sketch19.addConstraint(Sketcher.Constraint("Vertical", 7, 2, 10, 2))
sketch19.addConstraint(Sketcher.Constraint("DistanceX", 0, 2, 0, 1, Q("2.703125 in")))
sketch19.addConstraint(Sketcher.Constraint("DistanceY", 5, 2, 0, 2, Q("1.046875 in")))
sketch19.addConstraint(Sketcher.Constraint("DistanceX", 3, 2, 6, 2, Q("2.2037002 in")))
sketch19.addConstraint(Sketcher.Constraint("DistanceY", 1, 2, 1, 1, 1.096681))
sketch19.addConstraint(Sketcher.Constraint("DistanceY", 5, 2, 5, 1, 0.83863))
sketch19.addConstraint(Sketcher.Constraint("DistanceX", 4, 2, 8, 2, 56.097301))
sketch19.addConstraint(Sketcher.Constraint("DistanceX", -1, 1, 0, 2, 175.47263))
sketch19.addConstraint(Sketcher.Constraint("DistanceY", -1, 1, 0, 2, 33.975829))
sketch19.setExpression("Constraints[28]", "Params.sketch19_width")
pad16 = body12.newObject("PartDesign::Pad", "Pad015")
pad16.Profile = sketch19
pad16.setExpression("Length", "Params.pad16_length")

# Sketch on XY plane
sketch20 = body12.newObject("Sketcher::SketchObject", "Sketch019")
sketch20.AttachmentSupport = (doc.getObject("XY_Plane011"), [""])
sketch20.MapMode = "FlatFace"
sketch20.addGeometry(Part.Circle(App.Vector(239.96323, 20.680516, 0), App.Vector(0, 0, 1), 2.4384), False)
sketch20.addGeometry(Part.Circle(App.Vector(179.63823, 20.680516, 0), App.Vector(0, 0, 1), 2.4384), False)
sketch20.addConstraint(Sketcher.Constraint("Equal", 0, 1))
sketch20.addConstraint(Sketcher.Constraint("Horizontal", 0, 3, 1, 3))
sketch20.addConstraint(Sketcher.Constraint("Diameter", 0, Q("0.192 in")))
sketch20.addConstraint(Sketcher.Constraint("DistanceX", 1, 3, 0, 3, Q("2.375 in")))
sketch20.addConstraint(Sketcher.Constraint("DistanceX", -1, 1, 0, 3, 239.96323))
sketch20.addConstraint(Sketcher.Constraint("DistanceY", -1, 1, 0, 3, 20.680516))
sketch20.setExpression("Constraints[2]", "Params.sketch20_diameter")
pocket4 = body12.newObject("PartDesign::Pocket", "Pocket003")
pocket4.Profile = sketch20
pocket4.setExpression("Length", "Params.pocket4_length")
pocket4.Reversed = True
body13 = doc.addObject("PartDesign::Body", "Body012")

# Sketch on XY plane
sketch21 = body13.newObject("Sketcher::SketchObject", "Sketch020")
sketch21.AttachmentSupport = (doc.getObject("XY_Plane012"), [""])
sketch21.MapMode = "FlatFace"
sketch21.addGeometry(Part.Circle(App.Vector(-419.122159, 26.473796, 0), App.Vector(0, 0, 1), 3.96875), False)
sketch21.addConstraint(Sketcher.Constraint("Diameter", 0, Q("0.3125 in")))
sketch21.addConstraint(Sketcher.Constraint("DistanceX", 0, 3, -1, 1, 419.122159))
sketch21.addConstraint(Sketcher.Constraint("DistanceY", -1, 1, 0, 3, 26.473796))
sketch21.setExpression("Constraints[0]", "Params.sketch21_diameter")
pad17 = body13.newObject("PartDesign::Pad", "Pad016")
pad17.Profile = sketch21
pad17.setExpression("Length", "Params.pad17_length")
pad17.Reversed = True

# Sketch on XY plane
sketch22 = body13.newObject("Sketcher::SketchObject", "Sketch021")
sketch22.AttachmentSupport = (doc.getObject("XY_Plane012"), [""])
sketch22.MapMode = "FlatFace"
sketch22.addGeometry(Part.LineSegment(App.Vector(-417.621972, 19.296556, 0), App.Vector(-412.156394, 24.184376, 0)), False)
sketch22.addGeometry(Part.LineSegment(App.Vector(-412.156394, 24.184376, 0), App.Vector(-413.656581, 31.361616, 0)), False)
sketch22.addGeometry(Part.LineSegment(App.Vector(-413.656581, 31.361616, 0), App.Vector(-420.622346, 33.651036, 0)), False)
sketch22.addGeometry(Part.LineSegment(App.Vector(-420.622346, 33.651036, 0), App.Vector(-426.087925, 28.763216, 0)), False)
sketch22.addGeometry(Part.LineSegment(App.Vector(-426.087925, 28.763216, 0), App.Vector(-424.587738, 21.585976, 0)), False)
sketch22.addGeometry(Part.LineSegment(App.Vector(-424.587738, 21.585976, 0), App.Vector(-417.621972, 19.296556, 0)), False)
sketch22.addConstraint(Sketcher.Constraint("Coincident", 0, 2, 1, 1))
sketch22.addConstraint(Sketcher.Constraint("Coincident", 1, 2, 2, 1))
sketch22.addConstraint(Sketcher.Constraint("Coincident", 2, 2, 3, 1))
sketch22.addConstraint(Sketcher.Constraint("Coincident", 3, 2, 4, 1))
sketch22.addConstraint(Sketcher.Constraint("Coincident", 4, 2, 5, 1))
sketch22.addConstraint(Sketcher.Constraint("Coincident", 5, 2, 0, 1))
sketch22.addConstraint(Sketcher.Constraint("Parallel", 0, 3))
sketch22.addConstraint(Sketcher.Constraint("Parallel", 1, 4))
sketch22.addConstraint(Sketcher.Constraint("Parallel", 2, 5))
sketch22.addConstraint(Sketcher.Constraint("Equal", 0, 1))
sketch22.addConstraint(Sketcher.Constraint("Equal", 1, 2))
sketch22.addConstraint(Sketcher.Constraint("Equal", 2, 3))
sketch22.addConstraint(Sketcher.Constraint("DistanceY", 3, 2, 1, 2, 2.5984))
sketch22.addConstraint(Sketcher.Constraint("Distance", 0, 7.332348))
sketch22.addConstraint(Sketcher.Constraint("DistanceX", 1, 2, -1, 1, 413.656581))
sketch22.addConstraint(Sketcher.Constraint("DistanceX", 4, 2, -1, 1, 424.587738))
sketch22.addConstraint(Sketcher.Constraint("DistanceY", 0, 2, 1, 2, 7.17724))
sketch22.addConstraint(Sketcher.Constraint("DistanceY", -1, 1, 0, 2, 24.184376))
pad18 = body13.newObject("PartDesign::Pad", "Pad017")
pad18.Profile = sketch22
pad18.setExpression("Length", "Params.pad18_length")
doc.recompute()

chamfer3 = body13.newObject("PartDesign::Chamfer", "Chamfer002")
chamfer3.Base = (pad18, edges_at(pad18, [(-423.091, 26.474, -25.4)]))
chamfer3.setExpression("Size", "Params.chamfer3_size")

doc.recompute()
